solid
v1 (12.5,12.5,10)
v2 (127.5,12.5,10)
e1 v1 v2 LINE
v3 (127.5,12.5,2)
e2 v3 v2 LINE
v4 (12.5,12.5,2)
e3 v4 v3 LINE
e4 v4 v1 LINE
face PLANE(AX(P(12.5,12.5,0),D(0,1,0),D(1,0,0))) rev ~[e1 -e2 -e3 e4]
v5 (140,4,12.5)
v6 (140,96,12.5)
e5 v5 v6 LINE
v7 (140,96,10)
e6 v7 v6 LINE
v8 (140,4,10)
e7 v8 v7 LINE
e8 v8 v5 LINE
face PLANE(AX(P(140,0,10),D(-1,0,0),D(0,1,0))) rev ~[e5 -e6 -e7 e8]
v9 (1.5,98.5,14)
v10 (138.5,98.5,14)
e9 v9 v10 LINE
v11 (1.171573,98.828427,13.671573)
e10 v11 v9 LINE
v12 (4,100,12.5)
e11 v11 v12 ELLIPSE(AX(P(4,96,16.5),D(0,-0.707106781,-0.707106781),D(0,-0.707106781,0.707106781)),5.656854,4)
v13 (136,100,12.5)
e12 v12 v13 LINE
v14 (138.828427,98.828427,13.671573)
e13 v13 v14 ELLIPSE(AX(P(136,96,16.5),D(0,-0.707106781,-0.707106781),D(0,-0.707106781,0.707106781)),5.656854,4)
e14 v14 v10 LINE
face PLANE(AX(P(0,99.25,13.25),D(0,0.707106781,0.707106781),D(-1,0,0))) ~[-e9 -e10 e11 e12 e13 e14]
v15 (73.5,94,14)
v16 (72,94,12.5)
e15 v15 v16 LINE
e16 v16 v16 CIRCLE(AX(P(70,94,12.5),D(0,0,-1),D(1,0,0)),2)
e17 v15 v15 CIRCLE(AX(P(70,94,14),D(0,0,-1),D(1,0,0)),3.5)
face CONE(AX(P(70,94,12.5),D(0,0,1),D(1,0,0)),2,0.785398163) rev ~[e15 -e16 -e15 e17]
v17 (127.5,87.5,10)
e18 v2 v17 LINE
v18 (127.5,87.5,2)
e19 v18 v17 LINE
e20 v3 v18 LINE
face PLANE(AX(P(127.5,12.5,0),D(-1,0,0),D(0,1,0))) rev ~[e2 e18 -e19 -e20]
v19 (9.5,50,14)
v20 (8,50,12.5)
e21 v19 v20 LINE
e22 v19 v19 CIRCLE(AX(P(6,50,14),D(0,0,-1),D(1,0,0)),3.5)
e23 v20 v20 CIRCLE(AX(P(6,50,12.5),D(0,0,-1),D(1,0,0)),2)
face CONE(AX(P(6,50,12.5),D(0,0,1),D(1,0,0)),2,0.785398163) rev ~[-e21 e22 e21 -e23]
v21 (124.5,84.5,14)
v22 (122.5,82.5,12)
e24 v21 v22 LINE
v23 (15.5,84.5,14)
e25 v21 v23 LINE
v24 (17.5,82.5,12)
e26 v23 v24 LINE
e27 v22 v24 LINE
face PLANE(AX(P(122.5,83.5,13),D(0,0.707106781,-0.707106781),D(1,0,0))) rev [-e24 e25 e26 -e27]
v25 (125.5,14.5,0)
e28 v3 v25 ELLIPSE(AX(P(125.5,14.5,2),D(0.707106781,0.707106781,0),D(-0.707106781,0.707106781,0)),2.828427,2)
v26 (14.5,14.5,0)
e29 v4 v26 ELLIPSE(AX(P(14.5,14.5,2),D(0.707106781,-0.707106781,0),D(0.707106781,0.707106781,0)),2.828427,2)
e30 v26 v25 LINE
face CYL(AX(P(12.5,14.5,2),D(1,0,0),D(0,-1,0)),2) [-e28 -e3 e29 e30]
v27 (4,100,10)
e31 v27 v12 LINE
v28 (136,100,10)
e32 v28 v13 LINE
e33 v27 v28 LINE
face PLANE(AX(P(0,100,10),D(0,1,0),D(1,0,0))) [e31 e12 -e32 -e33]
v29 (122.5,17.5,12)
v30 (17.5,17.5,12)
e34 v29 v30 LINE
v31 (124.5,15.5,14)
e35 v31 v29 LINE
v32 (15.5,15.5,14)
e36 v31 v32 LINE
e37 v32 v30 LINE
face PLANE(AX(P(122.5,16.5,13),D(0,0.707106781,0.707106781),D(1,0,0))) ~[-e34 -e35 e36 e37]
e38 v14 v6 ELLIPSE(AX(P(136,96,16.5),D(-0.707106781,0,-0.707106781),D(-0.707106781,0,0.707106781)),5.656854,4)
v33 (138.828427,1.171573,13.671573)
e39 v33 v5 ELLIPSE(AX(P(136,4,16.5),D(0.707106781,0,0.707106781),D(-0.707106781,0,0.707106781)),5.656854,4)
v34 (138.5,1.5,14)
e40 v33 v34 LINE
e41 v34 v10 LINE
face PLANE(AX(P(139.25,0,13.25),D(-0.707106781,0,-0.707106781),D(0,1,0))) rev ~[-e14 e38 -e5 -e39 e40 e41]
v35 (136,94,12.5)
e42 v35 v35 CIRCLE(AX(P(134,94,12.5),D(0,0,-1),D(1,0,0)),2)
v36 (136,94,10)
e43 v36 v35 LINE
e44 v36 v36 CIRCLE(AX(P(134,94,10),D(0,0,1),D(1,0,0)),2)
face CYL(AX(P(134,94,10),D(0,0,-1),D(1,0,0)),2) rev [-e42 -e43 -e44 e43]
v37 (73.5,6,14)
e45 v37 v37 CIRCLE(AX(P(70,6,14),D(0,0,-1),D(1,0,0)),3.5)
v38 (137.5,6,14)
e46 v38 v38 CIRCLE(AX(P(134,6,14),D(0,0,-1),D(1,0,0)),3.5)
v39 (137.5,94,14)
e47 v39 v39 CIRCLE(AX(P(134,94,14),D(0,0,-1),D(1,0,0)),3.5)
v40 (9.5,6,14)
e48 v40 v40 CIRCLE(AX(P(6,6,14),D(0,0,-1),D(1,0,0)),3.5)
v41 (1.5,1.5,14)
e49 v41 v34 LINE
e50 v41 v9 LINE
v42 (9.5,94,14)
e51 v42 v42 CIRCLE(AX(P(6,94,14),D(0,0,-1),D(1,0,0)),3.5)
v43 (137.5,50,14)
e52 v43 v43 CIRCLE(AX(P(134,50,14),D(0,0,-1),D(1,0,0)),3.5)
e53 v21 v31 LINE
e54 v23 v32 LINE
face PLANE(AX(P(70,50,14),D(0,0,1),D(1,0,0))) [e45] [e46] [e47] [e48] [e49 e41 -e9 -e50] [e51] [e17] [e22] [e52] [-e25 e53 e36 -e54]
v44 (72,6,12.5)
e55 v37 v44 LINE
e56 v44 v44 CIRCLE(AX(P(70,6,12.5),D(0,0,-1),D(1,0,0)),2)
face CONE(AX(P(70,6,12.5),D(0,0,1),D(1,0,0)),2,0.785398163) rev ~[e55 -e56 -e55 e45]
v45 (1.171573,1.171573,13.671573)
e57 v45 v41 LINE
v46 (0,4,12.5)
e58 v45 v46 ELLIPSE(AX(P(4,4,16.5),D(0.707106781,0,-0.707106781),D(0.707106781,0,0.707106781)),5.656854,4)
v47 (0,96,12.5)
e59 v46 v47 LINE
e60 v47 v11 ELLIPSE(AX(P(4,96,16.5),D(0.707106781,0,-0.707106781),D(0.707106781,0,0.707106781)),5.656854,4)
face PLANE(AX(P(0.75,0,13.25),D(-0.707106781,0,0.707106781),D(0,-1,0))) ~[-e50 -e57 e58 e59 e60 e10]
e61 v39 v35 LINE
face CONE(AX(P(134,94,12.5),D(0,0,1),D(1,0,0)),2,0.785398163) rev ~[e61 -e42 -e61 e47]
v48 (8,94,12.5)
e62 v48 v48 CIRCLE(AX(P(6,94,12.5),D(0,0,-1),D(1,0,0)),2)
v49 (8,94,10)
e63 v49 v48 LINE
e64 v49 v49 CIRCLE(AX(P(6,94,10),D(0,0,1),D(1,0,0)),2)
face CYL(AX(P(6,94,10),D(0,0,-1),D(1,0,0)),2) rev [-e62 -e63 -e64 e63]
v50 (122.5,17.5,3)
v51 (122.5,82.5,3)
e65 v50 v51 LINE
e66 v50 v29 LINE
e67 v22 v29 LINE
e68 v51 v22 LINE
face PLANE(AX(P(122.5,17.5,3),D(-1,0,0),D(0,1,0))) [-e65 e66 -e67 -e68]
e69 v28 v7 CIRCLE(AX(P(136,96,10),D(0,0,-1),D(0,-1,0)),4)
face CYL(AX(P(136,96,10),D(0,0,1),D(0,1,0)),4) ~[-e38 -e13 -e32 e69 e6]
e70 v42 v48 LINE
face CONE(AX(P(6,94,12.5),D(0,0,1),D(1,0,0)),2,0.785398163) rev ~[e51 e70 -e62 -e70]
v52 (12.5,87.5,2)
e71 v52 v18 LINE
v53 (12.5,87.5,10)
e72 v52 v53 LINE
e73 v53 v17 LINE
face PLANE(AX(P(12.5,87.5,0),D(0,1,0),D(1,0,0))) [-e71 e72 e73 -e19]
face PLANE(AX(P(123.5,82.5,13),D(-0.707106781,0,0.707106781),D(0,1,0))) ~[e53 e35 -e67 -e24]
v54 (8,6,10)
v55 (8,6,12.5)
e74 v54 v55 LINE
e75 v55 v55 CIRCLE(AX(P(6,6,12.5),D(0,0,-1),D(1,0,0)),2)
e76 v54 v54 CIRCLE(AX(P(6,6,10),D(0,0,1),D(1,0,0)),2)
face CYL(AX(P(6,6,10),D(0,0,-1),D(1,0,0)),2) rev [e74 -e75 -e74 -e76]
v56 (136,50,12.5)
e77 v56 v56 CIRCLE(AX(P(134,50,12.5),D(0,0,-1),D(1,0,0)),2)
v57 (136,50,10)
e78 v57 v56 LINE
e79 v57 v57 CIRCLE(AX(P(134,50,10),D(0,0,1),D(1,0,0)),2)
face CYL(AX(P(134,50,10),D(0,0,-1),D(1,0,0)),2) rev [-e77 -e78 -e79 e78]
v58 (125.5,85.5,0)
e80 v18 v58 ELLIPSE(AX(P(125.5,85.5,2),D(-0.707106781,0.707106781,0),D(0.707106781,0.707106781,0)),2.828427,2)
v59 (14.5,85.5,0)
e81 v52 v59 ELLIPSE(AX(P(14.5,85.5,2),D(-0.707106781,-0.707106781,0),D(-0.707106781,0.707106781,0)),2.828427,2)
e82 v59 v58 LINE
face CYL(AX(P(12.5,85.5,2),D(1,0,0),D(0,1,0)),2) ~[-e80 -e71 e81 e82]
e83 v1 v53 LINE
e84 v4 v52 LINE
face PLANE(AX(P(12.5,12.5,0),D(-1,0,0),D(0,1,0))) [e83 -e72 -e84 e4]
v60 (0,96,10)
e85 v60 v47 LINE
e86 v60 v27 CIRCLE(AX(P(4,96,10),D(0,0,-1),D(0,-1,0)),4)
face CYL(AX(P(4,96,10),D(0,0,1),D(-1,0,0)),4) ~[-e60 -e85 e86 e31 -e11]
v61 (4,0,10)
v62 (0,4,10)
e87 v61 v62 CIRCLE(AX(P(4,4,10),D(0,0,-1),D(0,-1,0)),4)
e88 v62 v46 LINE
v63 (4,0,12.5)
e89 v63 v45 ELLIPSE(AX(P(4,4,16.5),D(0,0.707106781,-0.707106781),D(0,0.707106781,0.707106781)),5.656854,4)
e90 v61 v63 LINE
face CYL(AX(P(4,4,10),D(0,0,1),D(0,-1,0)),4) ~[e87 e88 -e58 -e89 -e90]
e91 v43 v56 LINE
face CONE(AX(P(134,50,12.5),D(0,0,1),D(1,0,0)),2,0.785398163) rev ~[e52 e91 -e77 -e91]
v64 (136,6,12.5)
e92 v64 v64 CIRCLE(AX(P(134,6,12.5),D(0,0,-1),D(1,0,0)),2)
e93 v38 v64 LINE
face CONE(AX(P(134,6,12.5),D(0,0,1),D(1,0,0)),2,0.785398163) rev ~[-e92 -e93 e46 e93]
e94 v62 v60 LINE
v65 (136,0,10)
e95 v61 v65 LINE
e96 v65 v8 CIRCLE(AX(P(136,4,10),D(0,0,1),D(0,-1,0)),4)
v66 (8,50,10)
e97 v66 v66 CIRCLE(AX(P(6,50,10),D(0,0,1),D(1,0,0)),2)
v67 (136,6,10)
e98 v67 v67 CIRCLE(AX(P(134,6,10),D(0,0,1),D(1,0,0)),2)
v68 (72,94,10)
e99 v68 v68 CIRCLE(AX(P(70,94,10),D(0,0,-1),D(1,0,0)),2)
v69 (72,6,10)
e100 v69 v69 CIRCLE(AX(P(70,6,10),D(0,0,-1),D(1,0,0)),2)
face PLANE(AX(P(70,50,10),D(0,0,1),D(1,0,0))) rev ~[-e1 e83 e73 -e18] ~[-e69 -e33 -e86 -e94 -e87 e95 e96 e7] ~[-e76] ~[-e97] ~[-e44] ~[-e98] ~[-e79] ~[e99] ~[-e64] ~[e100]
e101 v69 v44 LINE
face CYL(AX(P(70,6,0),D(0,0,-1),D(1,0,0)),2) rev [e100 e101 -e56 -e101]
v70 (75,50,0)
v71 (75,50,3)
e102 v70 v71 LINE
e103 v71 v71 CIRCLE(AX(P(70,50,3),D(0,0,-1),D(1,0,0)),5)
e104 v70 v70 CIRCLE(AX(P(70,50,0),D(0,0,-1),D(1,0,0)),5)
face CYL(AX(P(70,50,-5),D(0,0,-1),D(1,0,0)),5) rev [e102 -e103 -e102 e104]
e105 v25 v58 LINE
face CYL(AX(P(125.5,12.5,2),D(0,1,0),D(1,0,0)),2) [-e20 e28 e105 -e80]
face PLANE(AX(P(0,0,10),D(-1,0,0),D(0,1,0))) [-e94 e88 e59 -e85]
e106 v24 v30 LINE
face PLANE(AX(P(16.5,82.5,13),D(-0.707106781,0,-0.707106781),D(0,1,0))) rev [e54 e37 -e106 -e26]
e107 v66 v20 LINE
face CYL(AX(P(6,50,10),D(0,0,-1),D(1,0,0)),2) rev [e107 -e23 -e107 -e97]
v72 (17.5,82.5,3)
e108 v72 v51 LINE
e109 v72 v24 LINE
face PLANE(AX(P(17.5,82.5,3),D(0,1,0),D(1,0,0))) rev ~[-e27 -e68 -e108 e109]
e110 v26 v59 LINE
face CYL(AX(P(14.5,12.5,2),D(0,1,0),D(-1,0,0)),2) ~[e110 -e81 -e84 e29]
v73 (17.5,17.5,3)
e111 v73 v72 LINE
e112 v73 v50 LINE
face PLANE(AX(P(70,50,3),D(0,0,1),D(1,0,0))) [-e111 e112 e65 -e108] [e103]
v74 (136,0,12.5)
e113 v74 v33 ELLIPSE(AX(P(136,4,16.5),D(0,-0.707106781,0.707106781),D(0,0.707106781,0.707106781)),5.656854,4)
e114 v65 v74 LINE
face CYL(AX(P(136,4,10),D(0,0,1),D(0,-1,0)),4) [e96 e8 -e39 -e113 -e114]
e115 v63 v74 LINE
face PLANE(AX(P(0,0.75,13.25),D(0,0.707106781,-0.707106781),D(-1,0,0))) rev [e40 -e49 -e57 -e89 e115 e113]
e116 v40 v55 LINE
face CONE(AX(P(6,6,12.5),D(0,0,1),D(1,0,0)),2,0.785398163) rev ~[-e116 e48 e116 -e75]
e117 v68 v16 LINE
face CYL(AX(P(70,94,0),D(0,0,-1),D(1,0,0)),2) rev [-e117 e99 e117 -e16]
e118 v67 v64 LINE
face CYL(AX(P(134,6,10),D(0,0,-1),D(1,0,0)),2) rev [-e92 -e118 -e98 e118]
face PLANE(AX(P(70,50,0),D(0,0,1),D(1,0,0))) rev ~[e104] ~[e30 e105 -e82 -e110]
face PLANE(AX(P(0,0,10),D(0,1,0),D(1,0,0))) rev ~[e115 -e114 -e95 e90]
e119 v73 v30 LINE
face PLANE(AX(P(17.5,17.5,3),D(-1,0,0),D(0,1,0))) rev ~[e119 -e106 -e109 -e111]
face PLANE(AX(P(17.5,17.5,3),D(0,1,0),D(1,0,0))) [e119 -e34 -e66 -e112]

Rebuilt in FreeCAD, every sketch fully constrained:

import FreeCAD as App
import Part
import Sketcher
from FreeCAD import Vector


def edges_at(feature, points):
    """Names of the edges that pass closest to the given points."""
    edges = feature.Shape.Edges
    near = lambda p: min(range(len(edges)), key=lambda i: edges[i].distToShape(Part.Vertex(*p))[0])
    return sorted({f"Edge{near(p) + 1}" for p in points})

doc = App.newDocument("Part")
body = doc.addObject("PartDesign::Body", "Body")

# Sketch on XY plane
sketch1 = body.newObject("Sketcher::SketchObject", "Sketch")
sketch1.AttachmentSupport = (doc.getObject("XY_Plane"), [""])
sketch1.MapMode = "FlatFace"
sketch1.addGeometry(Part.Circle(Vector(70, 6, 0), Vector(0, 0, 1), 2), False)
sketch1.addConstraint([
    Sketcher.Constraint("Diameter", 0, 4.0),
    Sketcher.Constraint("DistanceX", -1, 1, 0, 3, 70.0),
    Sketcher.Constraint("DistanceY", -1, 1, 0, 3, 6.0),
])
pad1 = body.newObject("PartDesign::Pad", "Pad")
pad1.Profile = sketch1
pad1.Length = 20
body2 = doc.addObject("PartDesign::Body", "Body001")

# Sketch on XY plane
sketch2 = body2.newObject("Sketcher::SketchObject", "Sketch001")
sketch2.AttachmentSupport = (doc.getObject("XY_Plane001"), [""])
sketch2.MapMode = "FlatFace"
sketch2.addGeometry(Part.Circle(Vector(70, 94, 0), Vector(0, 0, 1), 2), False)
sketch2.addConstraint([
    Sketcher.Constraint("Diameter", 0, 4.0),
    Sketcher.Constraint("DistanceX", -1, 1, 0, 3, 70.0),
    Sketcher.Constraint("DistanceY", -1, 1, 0, 3, 94.0),
])
pad2 = body2.newObject("PartDesign::Pad", "Pad001")
pad2.Profile = sketch2
pad2.Length = 20
body3 = doc.addObject("PartDesign::Body", "Body002")

# Sketch on XY plane
sketch3 = body3.newObject("Sketcher::SketchObject", "Sketch002")
sketch3.AttachmentSupport = (doc.getObject("XY_Plane002"), [""])
sketch3.MapMode = "FlatFace"
sketch3.AttachmentOffset = App.Placement(Vector(0, 0, -5), App.Rotation())
sketch3.addGeometry(Part.Circle(Vector(70, 50, 0), Vector(0, 0, 1), 5), False)
sketch3.addConstraint([
    Sketcher.Constraint("Diameter", 0, 10.0),
    Sketcher.Constraint("DistanceX", -1, 1, 0, 3, 70.0),
    Sketcher.Constraint("DistanceY", -1, 1, 0, 3, 50.0),
])
pad3 = body3.newObject("PartDesign::Pad", "Pad002")
pad3.Profile = sketch3
pad3.Length = 20
body4 = doc.addObject("PartDesign::Body", "Body003")

# Sketch on XY plane
sketch4 = body4.newObject("Sketcher::SketchObject", "Sketch003")
sketch4.AttachmentSupport = (doc.getObject("XY_Plane003"), [""])
sketch4.MapMode = "FlatFace"
sketch4.AttachmentOffset = App.Placement(Vector(0, 0, 3), App.Rotation())
sketch4.addGeometry([
    Part.LineSegment(Vector(18, 82, 0), Vector(18, 18, 0)),
    Part.LineSegment(Vector(18, 18, 0), Vector(122, 18, 0)),
    Part.LineSegment(Vector(122, 18, 0), Vector(122, 82, 0)),
    Part.LineSegment(Vector(122, 82, 0), Vector(18, 82, 0)),
], False)
sketch4.addConstraint([
    Sketcher.Constraint("Coincident", 0, 2, 1, 1),
    Sketcher.Constraint("Coincident", 1, 2, 2, 1),
    Sketcher.Constraint("Coincident", 2, 2, 3, 1),
    Sketcher.Constraint("Coincident", 3, 2, 0, 1),
    Sketcher.Constraint("Vertical", 0),
    Sketcher.Constraint("Horizontal", 1),
    Sketcher.Constraint("Vertical", 2),
    Sketcher.Constraint("Horizontal", 3),
    Sketcher.Constraint("DistanceX", 1, 1, 1, 2, 105.0),
    Sketcher.Constraint("DistanceY", 0, 2, 0, 1, 65.0),
    Sketcher.Constraint("DistanceX", -1, 1, 0, 2, 17.5),
    Sketcher.Constraint("DistanceY", -1, 1, 0, 2, 17.5),
])
pad4 = body4.newObject("PartDesign::Pad", "Pad003")
pad4.Profile = sketch4
pad4.Length = 20
body5 = doc.addObject("PartDesign::Body", "Body004")

# Sketch on XY plane
sketch5 = body5.newObject("Sketcher::SketchObject", "Sketch004")
sketch5.AttachmentSupport = (doc.getObject("XY_Plane004"), [""])
sketch5.MapMode = "FlatFace"
sketch5.addGeometry([
    Part.LineSegment(Vector(12, 88, 0), Vector(12, 12, 0)),
    Part.LineSegment(Vector(12, 12, 0), Vector(128, 12, 0)),
    Part.LineSegment(Vector(128, 12, 0), Vector(128, 88, 0)),
    Part.LineSegment(Vector(128, 88, 0), Vector(12, 88, 0)),
], False)
sketch5.addConstraint([
    Sketcher.Constraint("Coincident", 0, 2, 1, 1),
    Sketcher.Constraint("Coincident", 1, 2, 2, 1),
    Sketcher.Constraint("Coincident", 2, 2, 3, 1),
    Sketcher.Constraint("Coincident", 3, 2, 0, 1),
    Sketcher.Constraint("Vertical", 0),
    Sketcher.Constraint("Horizontal", 1),
    Sketcher.Constraint("Vertical", 2),
    Sketcher.Constraint("Horizontal", 3),
    Sketcher.Constraint("DistanceX", 1, 1, 1, 2, 115.0),
    Sketcher.Constraint("DistanceY", 0, 2, 0, 1, 75.0),
    Sketcher.Constraint("DistanceX", -1, 1, 0, 2, 12.5),
    Sketcher.Constraint("DistanceY", -1, 1, 0, 2, 12.5),
])
pad5 = body5.newObject("PartDesign::Pad", "Pad004")
pad5.Profile = sketch5
pad5.Length = 10
doc.recompute()

fillet = body5.newObject("PartDesign::Fillet", "Fillet")
fillet.Base = (pad5, edges_at(pad5, [
    (12.5, 50, 0),
    (127.5, 50, 0),
    (70, 12.5, 0),
    (70, 87.5, 0),
]))
fillet.Radius = 2
body6 = doc.addObject("PartDesign::Body", "Body005")

# Sketch on XY plane
sketch6 = body6.newObject("Sketcher::SketchObject", "Sketch005")
sketch6.AttachmentSupport = (doc.getObject("XY_Plane005"), [""])
sketch6.MapMode = "FlatFace"
sketch6.addGeometry(Part.Circle(Vector(6, 94, 0), Vector(0, 0, 1), 2), False)
sketch6.addConstraint([
    Sketcher.Constraint("Diameter", 0, 4.0),
    Sketcher.Constraint("DistanceX", -1, 1, 0, 3, 6.0),
    Sketcher.Constraint("DistanceY", -1, 1, 0, 3, 94.0),
])
pad6 = body6.newObject("PartDesign::Pad", "Pad005")
pad6.Profile = sketch6
pad6.Length = 10
body7 = doc.addObject("PartDesign::Body", "Body006")

# Sketch on XY plane
sketch7 = body7.newObject("Sketcher::SketchObject", "Sketch006")
sketch7.AttachmentSupport = (doc.getObject("XY_Plane006"), [""])
sketch7.MapMode = "FlatFace"
sketch7.addGeometry(Part.Circle(Vector(6, 50, 0), Vector(0, 0, 1), 2), False)
sketch7.addConstraint([
    Sketcher.Constraint("Diameter", 0, 4.0),
    Sketcher.Constraint("DistanceX", -1, 1, 0, 3, 6.0),
    Sketcher.Constraint("DistanceY", -1, 1, 0, 3, 50.0),
])
pad7 = body7.newObject("PartDesign::Pad", "Pad006")
pad7.Profile = sketch7
pad7.Length = 10
body8 = doc.addObject("PartDesign::Body", "Body007")

# Sketch on XY plane
sketch8 = body8.newObject("Sketcher::SketchObject", "Sketch007")
sketch8.AttachmentSupport = (doc.getObject("XY_Plane007"), [""])
sketch8.MapMode = "FlatFace"
sketch8.addGeometry(Part.Circle(Vector(6, 6, 0), Vector(0, 0, 1), 2), False)
sketch8.addConstraint([
    Sketcher.Constraint("Diameter", 0, 4.0),
    Sketcher.Constraint("DistanceX", -1, 1, 0, 3, 6.0),
    Sketcher.Constraint("DistanceY", -1, 1, 0, 3, 6.0),
])
pad8 = body8.newObject("PartDesign::Pad", "Pad007")
pad8.Profile = sketch8
pad8.Length = 10
body9 = doc.addObject("PartDesign::Body", "Body008")

# Sketch on XY plane
sketch9 = body9.newObject("Sketcher::SketchObject", "Sketch008")
sketch9.AttachmentSupport = (doc.getObject("XY_Plane008"), [""])
sketch9.MapMode = "FlatFace"
sketch9.addGeometry(Part.Circle(Vector(134, 94, 0), Vector(0, 0, 1), 2), False)
sketch9.addConstraint([
    Sketcher.Constraint("Diameter", 0, 4.0),
    Sketcher.Constraint("DistanceX", -1, 1, 0, 3, 134.0),
    Sketcher.Constraint("DistanceY", -1, 1, 0, 3, 94.0),
])
pad9 = body9.newObject("PartDesign::Pad", "Pad008")
pad9.Profile = sketch9
pad9.Length = 10
body10 = doc.addObject("PartDesign::Body", "Body009")

# Sketch on XY plane
sketch10 = body10.newObject("Sketcher::SketchObject", "Sketch009")
sketch10.AttachmentSupport = (doc.getObject("XY_Plane009"), [""])
sketch10.MapMode = "FlatFace"
sketch10.addGeometry(Part.Circle(Vector(134, 50, 0), Vector(0, 0, 1), 2), False)
sketch10.addConstraint([
    Sketcher.Constraint("Diameter", 0, 4.0),
    Sketcher.Constraint("DistanceX", -1, 1, 0, 3, 134.0),
    Sketcher.Constraint("DistanceY", -1, 1, 0, 3, 50.0),
])
pad10 = body10.newObject("PartDesign::Pad", "Pad009")
pad10.Profile = sketch10
pad10.Length = 10
body11 = doc.addObject("PartDesign::Body", "Body010")

# Sketch on XY plane
sketch11 = body11.newObject("Sketcher::SketchObject", "Sketch010")
sketch11.AttachmentSupport = (doc.getObject("XY_Plane010"), [""])
sketch11.MapMode = "FlatFace"
sketch11.addGeometry(Part.Circle(Vector(134, 6, 0), Vector(0, 0, 1), 2), False)
sketch11.addConstraint([
    Sketcher.Constraint("Diameter", 0, 4.0),
    Sketcher.Constraint("DistanceX", -1, 1, 0, 3, 134.0),
    Sketcher.Constraint("DistanceY", -1, 1, 0, 3, 6.0),
])
pad11 = body11.newObject("PartDesign::Pad", "Pad010")
pad11.Profile = sketch11
pad11.Length = 10
body12 = doc.addObject("PartDesign::Body", "Body011")

# Sketch on XY plane
sketch12 = body12.newObject("Sketcher::SketchObject", "Sketch011")
sketch12.AttachmentSupport = (doc.getObject("XY_Plane011"), [""])
sketch12.MapMode = "FlatFace"
sketch12.addGeometry([
    Part.LineSegment(Vector(0, 100, 0), Vector(0, 0, 0)),
    Part.LineSegment(Vector(0, 0, 0), Vector(140, 0, 0)),
    Part.LineSegment(Vector(140, 0, 0), Vector(140, 100, 0)),
    Part.LineSegment(Vector(140, 100, 0), Vector(0, 100, 0)),
], False)
sketch12.addConstraint([
    Sketcher.Constraint("Coincident", 0, 2, 1, 1),
    Sketcher.Constraint("Coincident", 1, 2, 2, 1),
    Sketcher.Constraint("Coincident", 2, 2, 3, 1),
    Sketcher.Constraint("Coincident", 3, 2, 0, 1),
    Sketcher.Constraint("Vertical", 0),
    Sketcher.Constraint("Horizontal", 1),
    Sketcher.Constraint("Vertical", 2),
    Sketcher.Constraint("Horizontal", 3),
    Sketcher.Constraint("Coincident", 0, 2, -1, 1),
    Sketcher.Constraint("DistanceX", 1, 1, 1, 2, 140.0),
    Sketcher.Constraint("DistanceY", 0, 2, 0, 1, 100.0),
])
pad12 = body12.newObject("PartDesign::Pad", "Pad011")
pad12.Profile = sketch12
pad12.Length = 4
doc.recompute()

boolean = body12.newObject("PartDesign::Boolean", "Boolean")
boolean.Type = "Cut"
boolean.addObjects([body11])
doc.recompute()

boolean2 = body12.newObject("PartDesign::Boolean", "Boolean001")
boolean2.Type = "Cut"
boolean2.addObjects([body10])
doc.recompute()

boolean3 = body12.newObject("PartDesign::Boolean", "Boolean002")
boolean3.Type = "Cut"
boolean3.addObjects([body9])
doc.recompute()

boolean4 = body12.newObject("PartDesign::Boolean", "Boolean003")
boolean4.Type = "Cut"
boolean4.addObjects([body8])
doc.recompute()

boolean5 = body12.newObject("PartDesign::Boolean", "Boolean004")
boolean5.Type = "Cut"
boolean5.addObjects([body7])
doc.recompute()

boolean6 = body12.newObject("PartDesign::Boolean", "Boolean005")
boolean6.Type = "Cut"
boolean6.addObjects([body6])
body13 = doc.addObject("PartDesign::Body", "Body012")
doc.recompute()

body12.Placement = App.Placement(Vector(0, 0, 10), App.Rotation(Vector(0, 0, 1), 0))
boolean7 = body13.newObject("PartDesign::Boolean", "Boolean006")
boolean7.Type = "Fuse"
boolean7.addObjects([body12])
doc.recompute()

chamfer = body13.newObject("PartDesign::Chamfer", "Chamfer")
chamfer.Base = (boolean7, edges_at(boolean7, [
    (4, 50, 14),
    (4, 6, 14),
    (0, 50, 14),
    (70, 100, 14),
    (70, 0, 14),
    (140, 50, 14),
    (4, 94, 14),
    (132, 94, 14),
    (132, 50, 14),
    (132, 6, 14),
]))
chamfer.Size = 1.5
doc.recompute()

boolean8 = body13.newObject("PartDesign::Boolean", "Boolean007")
boolean8.Type = "Fuse"
boolean8.addObjects([body5])
doc.recompute()

boolean9 = body13.newObject("PartDesign::Boolean", "Boolean008")
boolean9.Type = "Cut"
boolean9.addObjects([body4])
doc.recompute()

boolean10 = body13.newObject("PartDesign::Boolean", "Boolean009")
boolean10.Type = "Cut"
boolean10.addObjects([body3])
doc.recompute()

chamfer2 = body13.newObject("PartDesign::Chamfer", "Chamfer001")
chamfer2.Base = (boolean10, edges_at(boolean10, [
    (122.5, 50, 14),
    (70, 17.5, 14),
    (17.5, 50, 14),
    (70, 82.5, 14),
]))
chamfer2.Size = 2
doc.recompute()

fillet2 = body13.newObject("PartDesign::Fillet", "Fillet001")
fillet2.Base = (chamfer2, edges_at(chamfer2, [(140, 0, 11.25), (140, 100, 11.25)]))
fillet2.Radius = 4
doc.recompute()

fillet3 = body13.newObject("PartDesign::Fillet", "Fillet002")
fillet3.Base = (fillet2, edges_at(fillet2, [(0, 0, 11.25), (0, 100, 11.25)]))
fillet3.Radius = 4
doc.recompute()

boolean11 = body13.newObject("PartDesign::Boolean", "Boolean010")
boolean11.Type = "Cut"
boolean11.addObjects([body2])
doc.recompute()

boolean12 = body13.newObject("PartDesign::Boolean", "Boolean011")
boolean12.Type = "Cut"
boolean12.addObjects([body])
doc.recompute()

chamfer3 = body13.newObject("PartDesign::Chamfer", "Chamfer002")
chamfer3.Base = (boolean12, edges_at(boolean12, [(68, 6, 14), (68, 94, 14)]))
chamfer3.Size = 1.5

doc.recompute()
